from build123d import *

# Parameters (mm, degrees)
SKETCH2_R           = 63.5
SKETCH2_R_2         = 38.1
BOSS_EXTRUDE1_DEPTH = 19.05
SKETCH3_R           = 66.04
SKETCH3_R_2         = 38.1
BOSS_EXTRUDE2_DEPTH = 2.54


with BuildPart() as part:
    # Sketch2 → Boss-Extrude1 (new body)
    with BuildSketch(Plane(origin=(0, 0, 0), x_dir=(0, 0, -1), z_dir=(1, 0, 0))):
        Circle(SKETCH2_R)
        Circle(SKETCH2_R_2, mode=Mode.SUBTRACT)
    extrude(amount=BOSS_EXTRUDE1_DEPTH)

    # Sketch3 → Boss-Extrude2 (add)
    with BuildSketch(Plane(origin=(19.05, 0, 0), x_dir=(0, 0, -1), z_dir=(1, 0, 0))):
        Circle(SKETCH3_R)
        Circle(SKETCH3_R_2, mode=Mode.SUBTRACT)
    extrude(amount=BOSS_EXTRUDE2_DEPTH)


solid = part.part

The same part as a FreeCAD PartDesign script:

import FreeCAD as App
import Part
import Sketcher

V = App.Vector
Q = App.Units.Quantity

doc = App.newDocument("Part")
params = doc.addObject("Spreadsheet::Sheet", "Params")
for row, (alias, value) in enumerate([
    ("sketch1_diameter", "5 in"),
    ("sketch1_diameter2", "3 in"),
    ("pad1_length", "0.75 in"),
    ("sketch2_diameter", "3 in"),
    ("sketch2_diameter2", "5.2 in"),
    ("pad2_length", "0.1 in"),
], start=1):
    params.set(f"A{row}", alias)
    params.set(f"B{row}", "=" + value)
    params.setAlias(f"B{row}", alias)

body = doc.addObject("PartDesign::Body", "Body")

# Sketch on YZ plane
sketch1 = doc.addObject("Sketcher::SketchObject", "Sketch")
body.addObject(sketch1)
sketch1.AttachmentSupport = (doc.YZ_Plane, [""])
sketch1.MapMode = "FlatFace"
sketch1.addGeometry([
    Part.Circle(V(0, 0, 0), V(0, 0, 1), 64),
    Part.Circle(V(0, 0, 0), V(0, 0, 1), 38),
], False)
sketch1.addConstraint([
    Sketcher.Constraint("Coincident", 0, 3, -1, 1),
    Sketcher.Constraint("Coincident", 1, 3, -1, 1),
    Sketcher.Constraint("Diameter", 0, Q("5 in")),
    Sketcher.Constraint("Diameter", 1, Q("3 in")),
])
sketch1.setExpression("Constraints[2]", "Params.sketch1_diameter")
sketch1.setExpression("Constraints[3]", "Params.sketch1_diameter2")
pad1 = doc.addObject("PartDesign::Pad", "Pad")
body.addObject(pad1)
pad1.Profile = sketch1
pad1.setExpression("Length", "Params.pad1_length")

# Sketch on YZ plane
sketch2 = doc.addObject("Sketcher::SketchObject", "Sketch001")
body.addObject(sketch2)
sketch2.AttachmentSupport = (doc.YZ_Plane, [""])
sketch2.MapMode = "FlatFace"
sketch2.AttachmentOffset = App.Placement(V(0, 0, 0.75 * 25.4), App.Rotation())
sketch2.addGeometry([
    Part.Circle(V(0, 0, 0), V(0, 0, 1), 66),
    Part.Circle(V(0, 0, 0), V(0, 0, 1), 38),
], False)
sketch2.addConstraint([
    Sketcher.Constraint("Coincident", 0, 3, -1, 1),
    Sketcher.Constraint("Coincident", 1, 3, -1, 1),
    Sketcher.Constraint("Diameter", 1, Q("3 in")),
    Sketcher.Constraint("Diameter", 0, Q("5.2 in")),
])
sketch2.setExpression("Constraints[2]", "Params.sketch2_diameter")
sketch2.setExpression("Constraints[3]", "Params.sketch2_diameter2")
pad2 = doc.addObject("PartDesign::Pad", "Pad001")
body.addObject(pad2)
pad2.Profile = sketch2
pad2.setExpression("Length", "Params.pad2_length")

doc.recompute()
